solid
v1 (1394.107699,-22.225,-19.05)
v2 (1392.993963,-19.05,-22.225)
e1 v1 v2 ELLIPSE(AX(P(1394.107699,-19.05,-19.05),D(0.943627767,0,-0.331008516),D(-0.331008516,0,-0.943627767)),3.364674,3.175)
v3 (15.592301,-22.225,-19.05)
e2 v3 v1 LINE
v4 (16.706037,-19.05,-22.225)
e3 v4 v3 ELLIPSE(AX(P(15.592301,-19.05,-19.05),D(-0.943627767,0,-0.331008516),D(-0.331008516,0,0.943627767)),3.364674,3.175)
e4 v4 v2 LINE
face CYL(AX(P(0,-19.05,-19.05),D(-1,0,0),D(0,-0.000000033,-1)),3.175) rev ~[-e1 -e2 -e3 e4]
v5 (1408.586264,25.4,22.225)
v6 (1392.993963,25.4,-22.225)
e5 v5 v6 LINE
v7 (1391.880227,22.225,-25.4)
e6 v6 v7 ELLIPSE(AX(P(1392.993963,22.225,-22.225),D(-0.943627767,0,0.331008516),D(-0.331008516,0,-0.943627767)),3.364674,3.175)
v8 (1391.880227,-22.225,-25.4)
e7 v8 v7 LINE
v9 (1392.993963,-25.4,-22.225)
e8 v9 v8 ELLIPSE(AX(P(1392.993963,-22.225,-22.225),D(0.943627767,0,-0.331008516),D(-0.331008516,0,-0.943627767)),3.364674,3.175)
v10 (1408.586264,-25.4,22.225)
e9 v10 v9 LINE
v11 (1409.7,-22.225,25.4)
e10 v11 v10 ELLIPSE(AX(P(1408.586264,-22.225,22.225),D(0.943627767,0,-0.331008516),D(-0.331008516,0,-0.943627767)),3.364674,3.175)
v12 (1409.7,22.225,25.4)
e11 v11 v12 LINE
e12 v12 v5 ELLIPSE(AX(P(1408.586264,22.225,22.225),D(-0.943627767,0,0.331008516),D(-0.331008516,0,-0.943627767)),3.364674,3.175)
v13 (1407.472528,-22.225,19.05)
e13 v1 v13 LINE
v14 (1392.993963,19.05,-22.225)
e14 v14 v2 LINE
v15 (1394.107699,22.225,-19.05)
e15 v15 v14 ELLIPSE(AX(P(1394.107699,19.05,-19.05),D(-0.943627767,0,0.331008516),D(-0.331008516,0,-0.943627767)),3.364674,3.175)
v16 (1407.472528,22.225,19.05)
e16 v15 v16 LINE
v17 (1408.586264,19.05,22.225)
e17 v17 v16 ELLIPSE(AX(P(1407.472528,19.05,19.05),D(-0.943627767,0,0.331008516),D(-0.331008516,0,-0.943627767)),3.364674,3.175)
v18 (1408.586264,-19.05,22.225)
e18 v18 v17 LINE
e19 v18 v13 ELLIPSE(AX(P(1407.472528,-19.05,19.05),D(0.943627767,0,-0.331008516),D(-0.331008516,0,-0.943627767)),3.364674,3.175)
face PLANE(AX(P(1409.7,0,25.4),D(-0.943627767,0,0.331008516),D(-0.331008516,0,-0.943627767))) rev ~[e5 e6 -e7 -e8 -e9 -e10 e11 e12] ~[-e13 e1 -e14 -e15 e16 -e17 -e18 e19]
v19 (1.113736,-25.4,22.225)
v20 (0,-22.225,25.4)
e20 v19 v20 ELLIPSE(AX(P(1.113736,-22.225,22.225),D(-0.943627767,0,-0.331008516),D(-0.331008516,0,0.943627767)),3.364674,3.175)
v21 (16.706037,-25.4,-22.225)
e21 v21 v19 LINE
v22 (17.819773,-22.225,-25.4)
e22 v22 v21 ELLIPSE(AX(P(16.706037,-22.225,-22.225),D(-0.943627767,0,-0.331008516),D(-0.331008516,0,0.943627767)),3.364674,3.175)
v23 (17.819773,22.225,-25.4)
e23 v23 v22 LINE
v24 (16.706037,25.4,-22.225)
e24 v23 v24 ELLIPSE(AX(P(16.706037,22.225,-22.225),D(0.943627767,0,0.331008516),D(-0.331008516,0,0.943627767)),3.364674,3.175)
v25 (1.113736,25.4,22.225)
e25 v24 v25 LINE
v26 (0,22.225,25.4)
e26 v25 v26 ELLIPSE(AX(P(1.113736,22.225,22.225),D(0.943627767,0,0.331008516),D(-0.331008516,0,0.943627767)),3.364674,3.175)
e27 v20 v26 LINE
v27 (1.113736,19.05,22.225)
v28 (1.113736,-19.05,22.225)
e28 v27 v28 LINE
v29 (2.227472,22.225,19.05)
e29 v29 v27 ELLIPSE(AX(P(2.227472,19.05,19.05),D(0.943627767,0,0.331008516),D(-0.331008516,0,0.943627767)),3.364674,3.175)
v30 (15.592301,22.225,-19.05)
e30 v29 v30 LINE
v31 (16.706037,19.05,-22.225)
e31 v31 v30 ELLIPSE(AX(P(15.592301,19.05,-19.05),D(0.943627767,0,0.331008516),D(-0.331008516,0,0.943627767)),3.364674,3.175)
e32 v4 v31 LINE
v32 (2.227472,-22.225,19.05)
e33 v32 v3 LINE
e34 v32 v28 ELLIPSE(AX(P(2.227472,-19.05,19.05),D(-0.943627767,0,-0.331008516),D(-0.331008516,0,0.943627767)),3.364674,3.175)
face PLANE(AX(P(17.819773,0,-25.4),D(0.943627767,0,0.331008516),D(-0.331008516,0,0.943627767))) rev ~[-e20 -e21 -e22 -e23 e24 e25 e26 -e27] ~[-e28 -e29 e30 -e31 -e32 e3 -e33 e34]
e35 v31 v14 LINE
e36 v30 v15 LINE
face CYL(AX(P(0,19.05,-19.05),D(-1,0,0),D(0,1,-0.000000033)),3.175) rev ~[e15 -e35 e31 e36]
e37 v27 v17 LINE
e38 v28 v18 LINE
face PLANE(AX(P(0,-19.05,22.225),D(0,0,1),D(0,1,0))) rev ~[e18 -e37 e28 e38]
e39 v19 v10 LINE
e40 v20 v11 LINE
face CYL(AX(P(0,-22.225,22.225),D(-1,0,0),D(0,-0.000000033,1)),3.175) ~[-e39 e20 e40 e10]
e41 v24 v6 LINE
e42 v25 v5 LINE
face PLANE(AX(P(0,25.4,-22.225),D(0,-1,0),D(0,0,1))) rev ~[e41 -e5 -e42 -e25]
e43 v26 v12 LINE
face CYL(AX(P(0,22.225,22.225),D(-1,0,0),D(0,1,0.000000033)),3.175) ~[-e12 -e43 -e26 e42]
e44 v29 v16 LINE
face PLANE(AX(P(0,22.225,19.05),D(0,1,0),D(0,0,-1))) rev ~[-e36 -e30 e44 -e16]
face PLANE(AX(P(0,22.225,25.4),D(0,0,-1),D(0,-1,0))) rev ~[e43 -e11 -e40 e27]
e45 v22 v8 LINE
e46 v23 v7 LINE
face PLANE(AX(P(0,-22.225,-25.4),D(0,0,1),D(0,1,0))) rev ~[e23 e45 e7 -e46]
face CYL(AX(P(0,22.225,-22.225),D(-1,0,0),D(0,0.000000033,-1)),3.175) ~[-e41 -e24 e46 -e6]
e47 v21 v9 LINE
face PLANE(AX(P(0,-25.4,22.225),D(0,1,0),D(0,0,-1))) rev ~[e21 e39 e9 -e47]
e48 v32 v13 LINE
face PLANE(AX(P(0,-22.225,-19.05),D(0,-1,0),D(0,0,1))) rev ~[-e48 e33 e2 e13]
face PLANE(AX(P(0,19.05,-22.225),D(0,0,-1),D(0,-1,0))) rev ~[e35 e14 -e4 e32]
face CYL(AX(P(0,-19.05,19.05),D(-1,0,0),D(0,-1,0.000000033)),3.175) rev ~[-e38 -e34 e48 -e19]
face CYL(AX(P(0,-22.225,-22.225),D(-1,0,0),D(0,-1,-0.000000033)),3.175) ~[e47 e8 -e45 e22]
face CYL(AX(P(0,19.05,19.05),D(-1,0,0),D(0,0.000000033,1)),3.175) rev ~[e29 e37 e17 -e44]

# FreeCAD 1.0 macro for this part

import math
import FreeCAD as App
import Part
import Sketcher
Q = App.Units.Quantity


def add_polygon(sketch, points):
    """Adds a closed chain of lines whose ends are joined by coincident constraints."""
    first, n = sketch.GeometryCount, len(points)
    for a, b in zip(points, points[1:] + points[:1]):
        sketch.addGeometry(Part.LineSegment(App.Vector(*a, 0), App.Vector(*b, 0)), False)
    for i in range(n):
        sketch.addConstraint(Sketcher.Constraint("Coincident", first + i, 2, first + (i + 1) % n, 1))

doc = App.newDocument("Part")
body = doc.addObject("PartDesign::Body", "Body")

# Sketch on YZ plane
sketch1 = body.newObject("Sketcher::SketchObject", "Sketch")
sketch1.AttachmentSupport = (doc.getObject("YZ_Plane"), [""])
sketch1.MapMode = "FlatFace"
sketch1.addGeometry(Part.ArcOfCircle(Part.Circle(App.Vector(22.2, 22.2, 0), App.Vector(0, 0, 1), 3.2), math.radians(0), math.radians(90)), False)
sketch1.addGeometry(Part.LineSegment(App.Vector(22.2, 25.4, 0), App.Vector(-22.2, 25.4, 0)), False)
sketch1.addGeometry(Part.ArcOfCircle(Part.Circle(App.Vector(-22.2, 22.2, 0), App.Vector(0, 0, 1), 3.2), math.radians(90), math.radians(180)), False)
sketch1.addGeometry(Part.LineSegment(App.Vector(-25.4, 22.2, 0), App.Vector(-25.4, -22.2, 0)), False)
sketch1.addGeometry(Part.ArcOfCircle(Part.Circle(App.Vector(-22.2, -22.2, 0), App.Vector(0, 0, 1), 3.2), math.radians(-180), math.radians(-90)), False)
sketch1.addGeometry(Part.LineSegment(App.Vector(-22.2, -25.4, 0), App.Vector(22.2, -25.4, 0)), False)
sketch1.addGeometry(Part.ArcOfCircle(Part.Circle(App.Vector(22.2, -22.2, 0), App.Vector(0, 0, 1), 3.2), math.radians(-90), math.radians(0)), False)
sketch1.addGeometry(Part.LineSegment(App.Vector(25.4, -22.2, 0), App.Vector(25.4, 22.2, 0)), False)
sketch1.addGeometry(Part.ArcOfCircle(Part.Circle(App.Vector(-19, 19, 0), App.Vector(0, 0, 1), 3.2), math.radians(90), math.radians(180)), False)
sketch1.addGeometry(Part.LineSegment(App.Vector(-19.1, 22.2, 0), App.Vector(19.1, 22.2, 0)), False)
sketch1.addGeometry(Part.ArcOfCircle(Part.Circle(App.Vector(19, 19, 0), App.Vector(0, 0, 1), 3.2), math.radians(0), math.radians(90)), False)
sketch1.addGeometry(Part.LineSegment(App.Vector(22.2, 19.1, 0), App.Vector(22.2, -19.1, 0)), False)
sketch1.addGeometry(Part.ArcOfCircle(Part.Circle(App.Vector(19, -19, 0), App.Vector(0, 0, 1), 3.2), math.radians(-90), math.radians(0)), False)
sketch1.addGeometry(Part.LineSegment(App.Vector(19.1, -22.2, 0), App.Vector(-19.1, -22.2, 0)), False)
sketch1.addGeometry(Part.ArcOfCircle(Part.Circle(App.Vector(-19, -19, 0), App.Vector(0, 0, 1), 3.2), math.radians(-180), math.radians(-90)), False)
sketch1.addGeometry(Part.LineSegment(App.Vector(-22.2, -19.1, 0), App.Vector(-22.2, 19.1, 0)), False)
sketch1.addConstraint(Sketcher.Constraint("Tangent", 0, 2, 1, 1))
sketch1.addConstraint(Sketcher.Constraint("Tangent", 1, 2, 2, 1))
sketch1.addConstraint(Sketcher.Constraint("Tangent", 2, 2, 3, 1))
sketch1.addConstraint(Sketcher.Constraint("Tangent", 3, 2, 4, 1))
sketch1.addConstraint(Sketcher.Constraint("Tangent", 4, 2, 5, 1))
sketch1.addConstraint(Sketcher.Constraint("Tangent", 5, 2, 6, 1))
sketch1.addConstraint(Sketcher.Constraint("Tangent", 6, 2, 7, 1))
sketch1.addConstraint(Sketcher.Constraint("Tangent", 7, 2, 0, 1))
sketch1.addConstraint(Sketcher.Constraint("Tangent", 8, 1, 9, 1))
sketch1.addConstraint(Sketcher.Constraint("Tangent", 9, 2, 10, 2))
sketch1.addConstraint(Sketcher.Constraint("Tangent", 10, 1, 11, 1))
sketch1.addConstraint(Sketcher.Constraint("Tangent", 11, 2, 12, 2))
sketch1.addConstraint(Sketcher.Constraint("Tangent", 12, 1, 13, 1))
sketch1.addConstraint(Sketcher.Constraint("Tangent", 13, 2, 14, 2))
sketch1.addConstraint(Sketcher.Constraint("Tangent", 14, 1, 15, 1))
sketch1.addConstraint(Sketcher.Constraint("Tangent", 15, 2, 8, 2))
sketch1.addConstraint(Sketcher.Constraint("Horizontal", 1))
sketch1.addConstraint(Sketcher.Constraint("Vertical", 3))
sketch1.addConstraint(Sketcher.Constraint("Horizontal", 5))
sketch1.addConstraint(Sketcher.Constraint("Vertical", 7))
sketch1.addConstraint(Sketcher.Constraint("Horizontal", 9))
sketch1.addConstraint(Sketcher.Constraint("Vertical", 11))
sketch1.addConstraint(Sketcher.Constraint("Horizontal", 13))
sketch1.addConstraint(Sketcher.Constraint("Vertical", 15))
sketch1.addConstraint(Sketcher.Constraint("Equal", 0, 2))
sketch1.addConstraint(Sketcher.Constraint("Equal", 2, 4))
sketch1.addConstraint(Sketcher.Constraint("Equal", 4, 6))
sketch1.addConstraint(Sketcher.Constraint("Equal", 6, 8))
sketch1.addConstraint(Sketcher.Constraint("Equal", 8, 10))
sketch1.addConstraint(Sketcher.Constraint("Equal", 10, 12))
sketch1.addConstraint(Sketcher.Constraint("Equal", 12, 14))
sketch1.addConstraint(Sketcher.Constraint("Symmetric", 0, 3, 4, 3, -1, 1))
sketch1.addConstraint(Sketcher.Constraint("Symmetric", 8, 3, 12, 3, -1, 1))
sketch1.addConstraint(Sketcher.Constraint("Horizontal", 7, 2, 8, 1))
sketch1.addConstraint(Sketcher.Constraint("Vertical", 5, 2, 10, 1))
sketch1.addConstraint(Sketcher.Constraint("Equal", 5, 3))
sketch1.addConstraint(Sketcher.Constraint("DistanceX", 9, 1, 9, 2, Q("1.5 in")))
sketch1.addConstraint(Sketcher.Constraint("DistanceY", -1, 1, 0, 2, Q("1 in")))
pad1 = body.newObject("PartDesign::Pad", "Pad")
pad1.Profile = sketch1
pad1.Length = Q("55.5 in")

# Sketch on XZ plane
sketch2 = body.newObject("Sketcher::SketchObject", "Sketch001")
sketch2.AttachmentSupport = (doc.getObject("XZ_Plane"), [""])
sketch2.MapMode = "FlatFace"
add_polygon(sketch2, [(0, -25), (18, -25), (0, 25)])  # lines 0-2
add_polygon(sketch2, [(1392, -25), (1410, -25), (1410, 25)])  # lines 3-5
sketch2.addConstraint(Sketcher.Constraint("Horizontal", 0))
sketch2.addConstraint(Sketcher.Constraint("Vertical", 2))
sketch2.addConstraint(Sketcher.Constraint("Horizontal", 3))
sketch2.addConstraint(Sketcher.Constraint("Vertical", 4))
sketch2.addConstraint(Sketcher.Constraint("Symmetric", 1, 2, 2, 2, -1, 1))
sketch2.addConstraint(Sketcher.Constraint("Horizontal", 2, 2, 3, 2))
sketch2.addConstraint(Sketcher.Constraint("Horizontal", 1, 2, 4, 2))
sketch2.addConstraint(Sketcher.Constraint("Equal", 0, 3))
sketch2.addConstraint(Sketcher.Constraint("DistanceY", 2, 2, 2, 1, Q("2 in")))
sketch2.addConstraint(Sketcher.Constraint("DistanceX", -1, 1, 3, 2, Q("55.5 in")))
sketch2.addConstraint(Sketcher.Constraint("Angle", 1, Q("109.33 deg")))
pocket1 = body.newObject("PartDesign::Pocket", "Pocket")
pocket1.Profile = sketch2
pocket1.Type = "ThroughAll"
pocket1.Midplane = True

doc.recompute()
